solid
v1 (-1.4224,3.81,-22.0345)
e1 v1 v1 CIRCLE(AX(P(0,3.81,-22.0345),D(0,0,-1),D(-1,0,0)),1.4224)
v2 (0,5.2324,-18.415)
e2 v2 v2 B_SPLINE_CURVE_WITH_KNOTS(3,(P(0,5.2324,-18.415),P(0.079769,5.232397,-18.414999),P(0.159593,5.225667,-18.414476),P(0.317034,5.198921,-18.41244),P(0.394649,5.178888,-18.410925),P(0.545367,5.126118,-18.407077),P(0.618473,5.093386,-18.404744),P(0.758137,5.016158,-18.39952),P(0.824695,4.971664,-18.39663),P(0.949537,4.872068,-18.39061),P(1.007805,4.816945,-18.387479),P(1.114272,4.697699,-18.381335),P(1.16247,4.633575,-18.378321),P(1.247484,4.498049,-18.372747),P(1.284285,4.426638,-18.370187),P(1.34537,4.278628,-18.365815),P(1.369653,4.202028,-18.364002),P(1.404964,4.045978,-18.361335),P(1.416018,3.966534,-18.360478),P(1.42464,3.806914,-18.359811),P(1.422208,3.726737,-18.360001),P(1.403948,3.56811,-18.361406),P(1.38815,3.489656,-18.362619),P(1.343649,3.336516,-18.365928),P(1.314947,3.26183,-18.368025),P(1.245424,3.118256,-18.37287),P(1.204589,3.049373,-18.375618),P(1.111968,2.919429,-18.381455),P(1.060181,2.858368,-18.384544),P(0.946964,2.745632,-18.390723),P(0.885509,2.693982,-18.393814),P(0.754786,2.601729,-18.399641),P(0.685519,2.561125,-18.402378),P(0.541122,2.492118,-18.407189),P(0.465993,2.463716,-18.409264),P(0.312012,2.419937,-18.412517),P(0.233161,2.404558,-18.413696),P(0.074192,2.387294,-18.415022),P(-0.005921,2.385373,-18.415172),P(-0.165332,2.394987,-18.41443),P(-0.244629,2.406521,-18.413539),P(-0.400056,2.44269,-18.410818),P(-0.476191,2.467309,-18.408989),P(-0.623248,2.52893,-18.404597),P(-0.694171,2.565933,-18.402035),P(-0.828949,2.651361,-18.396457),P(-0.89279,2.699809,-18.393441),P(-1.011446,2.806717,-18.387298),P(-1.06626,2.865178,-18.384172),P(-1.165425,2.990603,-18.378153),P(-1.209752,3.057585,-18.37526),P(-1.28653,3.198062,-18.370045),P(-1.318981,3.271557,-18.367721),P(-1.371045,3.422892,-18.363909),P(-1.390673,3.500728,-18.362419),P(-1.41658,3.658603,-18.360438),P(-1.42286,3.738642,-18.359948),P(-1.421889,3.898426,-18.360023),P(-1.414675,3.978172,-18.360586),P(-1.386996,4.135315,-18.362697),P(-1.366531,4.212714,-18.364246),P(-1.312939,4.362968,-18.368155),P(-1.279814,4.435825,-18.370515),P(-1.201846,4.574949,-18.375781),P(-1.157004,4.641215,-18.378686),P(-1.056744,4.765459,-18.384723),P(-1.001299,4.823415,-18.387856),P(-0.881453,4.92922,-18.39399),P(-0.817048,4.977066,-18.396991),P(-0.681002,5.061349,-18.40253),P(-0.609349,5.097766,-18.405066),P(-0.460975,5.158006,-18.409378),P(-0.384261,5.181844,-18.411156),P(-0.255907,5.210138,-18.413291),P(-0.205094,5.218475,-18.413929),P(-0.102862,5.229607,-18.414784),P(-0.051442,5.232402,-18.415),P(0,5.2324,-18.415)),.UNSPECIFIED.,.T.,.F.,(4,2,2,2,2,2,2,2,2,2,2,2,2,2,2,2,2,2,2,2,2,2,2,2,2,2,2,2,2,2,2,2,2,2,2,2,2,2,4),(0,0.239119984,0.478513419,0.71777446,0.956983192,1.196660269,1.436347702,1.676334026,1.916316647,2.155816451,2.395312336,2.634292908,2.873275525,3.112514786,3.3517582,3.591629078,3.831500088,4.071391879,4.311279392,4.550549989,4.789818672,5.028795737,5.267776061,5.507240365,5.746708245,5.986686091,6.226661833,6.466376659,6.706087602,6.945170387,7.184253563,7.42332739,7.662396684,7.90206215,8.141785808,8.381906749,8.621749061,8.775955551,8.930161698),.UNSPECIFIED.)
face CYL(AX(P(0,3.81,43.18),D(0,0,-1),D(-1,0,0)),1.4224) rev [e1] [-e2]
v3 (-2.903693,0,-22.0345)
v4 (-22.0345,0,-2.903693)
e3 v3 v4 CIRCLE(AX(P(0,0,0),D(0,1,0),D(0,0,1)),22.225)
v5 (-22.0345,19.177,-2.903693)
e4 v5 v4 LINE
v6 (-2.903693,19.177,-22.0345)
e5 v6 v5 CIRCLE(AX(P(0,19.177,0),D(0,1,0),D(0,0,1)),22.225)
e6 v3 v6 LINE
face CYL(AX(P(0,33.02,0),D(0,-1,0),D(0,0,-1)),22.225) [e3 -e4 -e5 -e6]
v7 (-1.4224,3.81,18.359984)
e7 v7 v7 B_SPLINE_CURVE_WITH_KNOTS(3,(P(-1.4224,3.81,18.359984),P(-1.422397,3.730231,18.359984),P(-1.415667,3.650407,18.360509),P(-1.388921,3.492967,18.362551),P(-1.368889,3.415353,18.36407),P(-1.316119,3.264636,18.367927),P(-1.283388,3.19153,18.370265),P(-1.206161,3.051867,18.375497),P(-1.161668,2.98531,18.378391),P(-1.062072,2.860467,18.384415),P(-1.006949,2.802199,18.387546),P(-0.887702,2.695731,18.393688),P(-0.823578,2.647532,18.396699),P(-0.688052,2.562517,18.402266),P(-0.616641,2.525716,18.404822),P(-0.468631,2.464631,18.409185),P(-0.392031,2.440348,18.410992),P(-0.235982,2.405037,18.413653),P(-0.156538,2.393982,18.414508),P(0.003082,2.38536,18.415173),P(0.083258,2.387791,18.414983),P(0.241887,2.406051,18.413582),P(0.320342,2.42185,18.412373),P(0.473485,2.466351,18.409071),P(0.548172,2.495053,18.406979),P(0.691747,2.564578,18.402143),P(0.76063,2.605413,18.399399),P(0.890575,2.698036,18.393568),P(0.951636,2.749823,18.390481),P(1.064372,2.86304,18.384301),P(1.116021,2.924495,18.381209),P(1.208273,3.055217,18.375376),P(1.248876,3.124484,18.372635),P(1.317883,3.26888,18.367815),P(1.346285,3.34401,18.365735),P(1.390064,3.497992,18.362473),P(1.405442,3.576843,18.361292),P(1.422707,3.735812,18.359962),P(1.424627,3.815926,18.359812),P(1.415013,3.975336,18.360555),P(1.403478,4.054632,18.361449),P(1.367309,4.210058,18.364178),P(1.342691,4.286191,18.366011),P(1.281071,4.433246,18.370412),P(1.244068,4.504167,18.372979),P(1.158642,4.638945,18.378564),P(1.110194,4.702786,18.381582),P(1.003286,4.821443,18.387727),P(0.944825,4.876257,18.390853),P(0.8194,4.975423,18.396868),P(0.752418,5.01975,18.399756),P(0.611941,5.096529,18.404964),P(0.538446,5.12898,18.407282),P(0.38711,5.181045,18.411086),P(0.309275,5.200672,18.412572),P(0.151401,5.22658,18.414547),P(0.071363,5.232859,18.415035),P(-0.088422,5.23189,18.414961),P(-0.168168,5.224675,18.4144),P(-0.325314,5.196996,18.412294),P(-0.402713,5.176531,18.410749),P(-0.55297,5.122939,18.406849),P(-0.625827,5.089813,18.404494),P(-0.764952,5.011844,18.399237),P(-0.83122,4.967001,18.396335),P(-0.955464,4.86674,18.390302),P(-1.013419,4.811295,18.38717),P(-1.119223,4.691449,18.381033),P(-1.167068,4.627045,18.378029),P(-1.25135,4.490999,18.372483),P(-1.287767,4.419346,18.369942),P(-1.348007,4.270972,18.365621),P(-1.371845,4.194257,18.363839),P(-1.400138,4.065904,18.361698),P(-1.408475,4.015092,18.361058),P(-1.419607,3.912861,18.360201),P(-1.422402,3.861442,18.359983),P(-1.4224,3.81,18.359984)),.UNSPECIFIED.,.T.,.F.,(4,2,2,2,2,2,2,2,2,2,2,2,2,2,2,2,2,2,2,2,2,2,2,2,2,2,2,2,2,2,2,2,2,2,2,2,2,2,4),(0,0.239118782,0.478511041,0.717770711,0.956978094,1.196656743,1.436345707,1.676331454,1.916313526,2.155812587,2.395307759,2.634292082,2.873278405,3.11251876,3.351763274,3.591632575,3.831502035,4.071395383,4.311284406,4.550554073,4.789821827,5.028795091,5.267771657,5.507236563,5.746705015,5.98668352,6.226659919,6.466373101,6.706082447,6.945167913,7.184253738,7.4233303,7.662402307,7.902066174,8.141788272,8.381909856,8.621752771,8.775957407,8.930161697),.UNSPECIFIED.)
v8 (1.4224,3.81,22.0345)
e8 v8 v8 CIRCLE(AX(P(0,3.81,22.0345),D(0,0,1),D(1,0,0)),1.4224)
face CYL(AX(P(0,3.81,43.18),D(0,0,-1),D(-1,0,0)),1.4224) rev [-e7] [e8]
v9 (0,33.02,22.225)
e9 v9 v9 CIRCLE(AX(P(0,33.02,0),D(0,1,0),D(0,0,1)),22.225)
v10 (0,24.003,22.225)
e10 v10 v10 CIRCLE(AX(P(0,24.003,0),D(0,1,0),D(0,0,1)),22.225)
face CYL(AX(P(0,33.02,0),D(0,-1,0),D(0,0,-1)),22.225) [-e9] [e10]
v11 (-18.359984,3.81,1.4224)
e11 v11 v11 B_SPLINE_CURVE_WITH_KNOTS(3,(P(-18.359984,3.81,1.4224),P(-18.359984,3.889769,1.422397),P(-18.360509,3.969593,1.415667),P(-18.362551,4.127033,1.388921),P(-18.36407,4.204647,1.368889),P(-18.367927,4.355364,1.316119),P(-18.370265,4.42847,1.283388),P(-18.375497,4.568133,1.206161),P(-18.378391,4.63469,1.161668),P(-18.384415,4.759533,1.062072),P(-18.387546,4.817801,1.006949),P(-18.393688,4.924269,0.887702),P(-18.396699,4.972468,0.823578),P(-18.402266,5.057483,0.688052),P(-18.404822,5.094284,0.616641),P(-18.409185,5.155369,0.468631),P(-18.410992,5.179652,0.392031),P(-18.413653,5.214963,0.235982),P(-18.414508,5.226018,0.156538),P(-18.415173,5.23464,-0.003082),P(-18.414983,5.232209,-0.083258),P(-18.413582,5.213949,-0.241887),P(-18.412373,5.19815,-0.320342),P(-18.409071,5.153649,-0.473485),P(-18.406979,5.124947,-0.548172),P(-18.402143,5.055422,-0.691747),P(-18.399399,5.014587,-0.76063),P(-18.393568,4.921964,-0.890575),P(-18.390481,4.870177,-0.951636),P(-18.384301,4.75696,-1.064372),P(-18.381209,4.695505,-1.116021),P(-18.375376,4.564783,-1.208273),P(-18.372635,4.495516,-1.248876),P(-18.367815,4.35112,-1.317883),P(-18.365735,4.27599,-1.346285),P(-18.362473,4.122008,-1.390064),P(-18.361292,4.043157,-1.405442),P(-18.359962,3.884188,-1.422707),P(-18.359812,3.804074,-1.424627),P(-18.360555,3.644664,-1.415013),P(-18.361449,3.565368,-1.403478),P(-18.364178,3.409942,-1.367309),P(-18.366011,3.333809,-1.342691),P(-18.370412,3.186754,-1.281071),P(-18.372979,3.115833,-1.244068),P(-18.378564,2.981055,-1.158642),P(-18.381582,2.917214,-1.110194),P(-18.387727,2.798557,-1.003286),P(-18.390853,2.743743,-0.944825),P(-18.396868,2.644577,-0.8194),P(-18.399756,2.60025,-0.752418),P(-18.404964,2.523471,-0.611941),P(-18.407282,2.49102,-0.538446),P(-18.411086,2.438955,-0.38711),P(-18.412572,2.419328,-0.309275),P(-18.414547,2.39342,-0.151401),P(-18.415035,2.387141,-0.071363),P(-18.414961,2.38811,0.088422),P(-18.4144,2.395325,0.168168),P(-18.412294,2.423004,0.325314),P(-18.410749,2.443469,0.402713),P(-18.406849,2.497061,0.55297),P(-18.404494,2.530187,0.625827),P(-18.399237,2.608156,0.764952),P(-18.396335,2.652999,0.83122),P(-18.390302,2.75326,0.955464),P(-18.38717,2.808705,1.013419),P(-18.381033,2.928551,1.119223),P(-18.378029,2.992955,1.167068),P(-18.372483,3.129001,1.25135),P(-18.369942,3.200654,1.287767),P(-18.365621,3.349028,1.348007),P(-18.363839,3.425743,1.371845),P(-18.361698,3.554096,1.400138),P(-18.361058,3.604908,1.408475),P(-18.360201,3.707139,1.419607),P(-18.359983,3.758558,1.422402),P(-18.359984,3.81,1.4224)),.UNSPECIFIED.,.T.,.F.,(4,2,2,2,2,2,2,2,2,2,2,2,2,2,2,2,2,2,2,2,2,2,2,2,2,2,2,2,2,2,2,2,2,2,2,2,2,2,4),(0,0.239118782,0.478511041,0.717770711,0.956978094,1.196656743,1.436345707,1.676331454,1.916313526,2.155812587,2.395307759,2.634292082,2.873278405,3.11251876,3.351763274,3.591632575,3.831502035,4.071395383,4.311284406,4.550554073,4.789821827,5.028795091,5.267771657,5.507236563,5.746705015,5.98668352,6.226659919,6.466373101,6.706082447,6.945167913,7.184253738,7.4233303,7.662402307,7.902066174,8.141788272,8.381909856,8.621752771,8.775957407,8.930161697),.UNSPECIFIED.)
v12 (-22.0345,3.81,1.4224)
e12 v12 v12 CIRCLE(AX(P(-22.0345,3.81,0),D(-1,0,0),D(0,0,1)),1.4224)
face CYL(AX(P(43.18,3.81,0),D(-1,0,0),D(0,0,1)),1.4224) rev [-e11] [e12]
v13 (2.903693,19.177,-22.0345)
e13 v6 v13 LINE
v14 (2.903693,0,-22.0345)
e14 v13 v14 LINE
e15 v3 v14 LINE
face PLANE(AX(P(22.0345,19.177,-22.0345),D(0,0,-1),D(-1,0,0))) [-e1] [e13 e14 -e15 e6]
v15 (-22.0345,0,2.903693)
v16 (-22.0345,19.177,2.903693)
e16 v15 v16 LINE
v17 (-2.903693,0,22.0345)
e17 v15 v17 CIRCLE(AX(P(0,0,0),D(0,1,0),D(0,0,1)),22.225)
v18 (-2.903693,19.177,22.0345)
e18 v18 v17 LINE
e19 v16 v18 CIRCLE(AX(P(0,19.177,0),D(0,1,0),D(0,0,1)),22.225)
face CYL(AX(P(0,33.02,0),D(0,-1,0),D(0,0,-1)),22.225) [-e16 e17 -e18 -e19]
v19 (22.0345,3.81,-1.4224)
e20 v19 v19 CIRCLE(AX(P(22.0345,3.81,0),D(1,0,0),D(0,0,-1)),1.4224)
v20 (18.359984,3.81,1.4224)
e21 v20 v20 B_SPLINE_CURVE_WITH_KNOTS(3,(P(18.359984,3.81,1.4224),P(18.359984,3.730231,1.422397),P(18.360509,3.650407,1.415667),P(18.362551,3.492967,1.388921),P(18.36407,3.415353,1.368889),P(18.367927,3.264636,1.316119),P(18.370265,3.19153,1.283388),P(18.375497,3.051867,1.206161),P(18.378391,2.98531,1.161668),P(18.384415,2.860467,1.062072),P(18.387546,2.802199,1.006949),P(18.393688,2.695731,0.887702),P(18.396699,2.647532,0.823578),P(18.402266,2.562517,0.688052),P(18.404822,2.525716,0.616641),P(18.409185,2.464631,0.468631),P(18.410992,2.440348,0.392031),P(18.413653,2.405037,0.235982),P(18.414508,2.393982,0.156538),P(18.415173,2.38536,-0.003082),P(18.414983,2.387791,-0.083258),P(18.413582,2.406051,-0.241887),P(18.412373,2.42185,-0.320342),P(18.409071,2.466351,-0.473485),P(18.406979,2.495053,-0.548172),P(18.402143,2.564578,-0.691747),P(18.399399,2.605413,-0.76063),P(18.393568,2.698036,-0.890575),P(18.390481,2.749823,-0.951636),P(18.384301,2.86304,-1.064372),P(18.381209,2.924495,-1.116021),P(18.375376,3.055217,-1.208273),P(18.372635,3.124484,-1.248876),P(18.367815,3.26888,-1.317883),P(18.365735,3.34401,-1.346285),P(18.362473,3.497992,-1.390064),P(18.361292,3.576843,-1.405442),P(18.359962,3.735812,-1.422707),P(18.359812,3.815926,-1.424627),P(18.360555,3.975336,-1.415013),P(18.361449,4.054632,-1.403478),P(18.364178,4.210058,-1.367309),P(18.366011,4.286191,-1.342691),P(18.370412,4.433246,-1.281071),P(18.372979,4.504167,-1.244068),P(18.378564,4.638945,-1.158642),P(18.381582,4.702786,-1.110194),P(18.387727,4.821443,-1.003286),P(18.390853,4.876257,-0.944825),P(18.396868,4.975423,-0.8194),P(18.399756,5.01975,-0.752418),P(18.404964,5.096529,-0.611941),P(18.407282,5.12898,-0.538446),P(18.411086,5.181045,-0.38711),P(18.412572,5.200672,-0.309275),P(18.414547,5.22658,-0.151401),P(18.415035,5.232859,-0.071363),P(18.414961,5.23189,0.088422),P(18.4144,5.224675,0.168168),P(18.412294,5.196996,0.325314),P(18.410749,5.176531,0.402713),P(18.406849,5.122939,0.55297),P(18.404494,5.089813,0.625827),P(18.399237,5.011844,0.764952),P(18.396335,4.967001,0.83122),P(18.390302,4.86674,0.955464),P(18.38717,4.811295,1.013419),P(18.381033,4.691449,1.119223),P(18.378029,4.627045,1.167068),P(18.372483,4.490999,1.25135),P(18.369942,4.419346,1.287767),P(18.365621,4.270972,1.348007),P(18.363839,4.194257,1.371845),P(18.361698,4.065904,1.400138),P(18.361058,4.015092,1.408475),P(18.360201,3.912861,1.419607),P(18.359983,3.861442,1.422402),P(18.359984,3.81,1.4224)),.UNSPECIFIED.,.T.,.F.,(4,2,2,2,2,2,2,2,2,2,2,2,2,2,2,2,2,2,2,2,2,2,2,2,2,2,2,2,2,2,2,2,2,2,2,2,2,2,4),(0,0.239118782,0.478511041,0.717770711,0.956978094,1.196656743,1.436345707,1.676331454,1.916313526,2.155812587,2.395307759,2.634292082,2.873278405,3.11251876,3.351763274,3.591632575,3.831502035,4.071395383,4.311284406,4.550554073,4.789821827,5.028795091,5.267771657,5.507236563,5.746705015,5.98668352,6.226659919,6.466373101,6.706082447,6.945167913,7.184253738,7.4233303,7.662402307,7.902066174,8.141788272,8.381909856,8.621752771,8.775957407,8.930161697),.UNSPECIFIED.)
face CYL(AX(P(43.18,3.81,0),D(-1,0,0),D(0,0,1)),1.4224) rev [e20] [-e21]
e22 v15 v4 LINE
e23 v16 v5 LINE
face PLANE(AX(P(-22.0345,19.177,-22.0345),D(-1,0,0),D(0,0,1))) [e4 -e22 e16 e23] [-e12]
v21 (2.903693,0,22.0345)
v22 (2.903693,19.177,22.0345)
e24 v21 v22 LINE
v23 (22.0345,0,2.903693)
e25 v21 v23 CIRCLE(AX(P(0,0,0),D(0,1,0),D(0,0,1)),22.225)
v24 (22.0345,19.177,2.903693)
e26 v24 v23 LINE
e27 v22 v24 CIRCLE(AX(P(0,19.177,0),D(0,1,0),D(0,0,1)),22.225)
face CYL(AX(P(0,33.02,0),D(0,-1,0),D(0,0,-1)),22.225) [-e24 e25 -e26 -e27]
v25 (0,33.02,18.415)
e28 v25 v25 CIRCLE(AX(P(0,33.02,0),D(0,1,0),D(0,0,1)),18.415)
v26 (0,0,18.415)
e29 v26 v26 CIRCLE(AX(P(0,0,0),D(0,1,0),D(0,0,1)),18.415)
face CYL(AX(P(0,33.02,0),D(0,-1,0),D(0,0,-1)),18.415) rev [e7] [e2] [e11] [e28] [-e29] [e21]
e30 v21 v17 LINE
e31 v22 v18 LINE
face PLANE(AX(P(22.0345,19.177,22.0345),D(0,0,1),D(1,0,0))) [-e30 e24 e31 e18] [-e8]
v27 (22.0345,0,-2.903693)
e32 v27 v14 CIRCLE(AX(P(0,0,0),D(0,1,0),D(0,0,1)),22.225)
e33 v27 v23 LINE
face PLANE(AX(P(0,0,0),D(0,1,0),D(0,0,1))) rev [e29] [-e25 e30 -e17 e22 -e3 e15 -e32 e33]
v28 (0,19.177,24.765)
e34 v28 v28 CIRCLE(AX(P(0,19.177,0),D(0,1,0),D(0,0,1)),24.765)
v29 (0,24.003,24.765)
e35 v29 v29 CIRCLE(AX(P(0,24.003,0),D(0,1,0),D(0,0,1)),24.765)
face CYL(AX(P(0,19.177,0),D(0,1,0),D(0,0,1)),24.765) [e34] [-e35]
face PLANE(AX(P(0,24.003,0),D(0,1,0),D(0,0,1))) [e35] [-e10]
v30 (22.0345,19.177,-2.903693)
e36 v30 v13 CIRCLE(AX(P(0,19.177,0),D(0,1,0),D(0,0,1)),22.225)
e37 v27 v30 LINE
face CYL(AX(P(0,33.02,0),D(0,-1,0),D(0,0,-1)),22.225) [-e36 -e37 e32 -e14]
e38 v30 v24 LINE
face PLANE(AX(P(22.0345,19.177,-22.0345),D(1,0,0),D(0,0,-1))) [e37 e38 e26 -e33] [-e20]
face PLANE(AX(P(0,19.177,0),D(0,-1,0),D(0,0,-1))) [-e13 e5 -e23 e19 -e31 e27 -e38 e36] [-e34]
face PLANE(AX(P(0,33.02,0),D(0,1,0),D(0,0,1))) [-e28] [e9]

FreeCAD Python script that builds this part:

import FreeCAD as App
import Part
import Sketcher
Q = App.Units.Quantity

doc = App.newDocument("Part")
body = doc.addObject("PartDesign::Body", "Body")

sketch1 = body.newObject("Sketcher::SketchObject", "Sketch")
sketch1.AttachmentSupport = (doc.getObject("XZ_Plane"), [""])
sketch1.MapMode = "FlatFace"
sketch1.addGeometry([
    Part.Circle(App.Vector(0, 0, 0), App.Vector(0, 0, 1), 22.225),
    Part.Circle(App.Vector(0, 0, 0), App.Vector(0, 0, 1), 18.415),
], False)
sketch1.addConstraint([
    Sketcher.Constraint("Coincident", 0, 3, -1, 1),
    Sketcher.Constraint("Coincident", 1, 3, -1, 1),
    Sketcher.Constraint("Diameter", 0, Q("1.75 in")),
    Sketcher.Constraint("Diameter", 1, Q("1.45 in")),
])
pad1 = body.newObject("PartDesign::Pad", "Pad")
pad1.Profile = sketch1
pad1.Length = Q("1.3 in")
pad1.Reversed = True

sketch2 = body.newObject("Sketcher::SketchObject", "Sketch001")
sketch2.AttachmentSupport = (doc.getObject("XY_Plane"), [""])
sketch2.MapMode = "FlatFace"
sketch2.addGeometry(Part.Circle(App.Vector(0, 3.81, 0), App.Vector(0, 0, 1), 1.4224), False)
sketch2.addConstraint([
    Sketcher.Constraint("PointOnObject", 0, 3, -2),
    Sketcher.Constraint("Diameter", 0, Q("0.112 in")),
    Sketcher.Constraint("DistanceY", -1, 1, 0, 3, Q("0.15 in")),
])
pocket1 = body.newObject("PartDesign::Pocket", "Pocket")
pocket1.Profile = sketch2
pocket1.Type = "ThroughAll"
pocket1.Midplane = True

sketch3 = body.newObject("Sketcher::SketchObject", "Sketch002")
sketch3.AttachmentSupport = (doc.getObject("YZ_Plane"), [""])
sketch3.MapMode = "FlatFace"
sketch3.addGeometry(Part.Circle(App.Vector(3.81, 0, 0), App.Vector(0, 0, 1), 1.4224), False)
sketch3.addConstraint([
    Sketcher.Constraint("PointOnObject", 0, 3, -1),
    Sketcher.Constraint("Diameter", 0, Q("0.112 in")),
    Sketcher.Constraint("DistanceX", -1, 1, 0, 3, Q("0.15 in")),
])
pocket2 = body.newObject("PartDesign::Pocket", "Pocket001")
pocket2.Profile = sketch3
pocket2.Type = "ThroughAll"
pocket2.Midplane = True

sketch4 = body.newObject("Sketcher::SketchObject", "Sketch003")
sketch4.AttachmentSupport = (doc.getObject("XZ_Plane"), [""])
sketch4.MapMode = "FlatFace"
sketch4.addGeometry([
    Part.LineSegment(App.Vector(-24.512764, 24.00016, 0), App.Vector(-24.512764, -24.00016, 0)),
    Part.LineSegment(App.Vector(-24.512764, -24.00016, 0), App.Vector(24.512764, -24.00016, 0)),
    Part.LineSegment(App.Vector(24.512764, -24.00016, 0), App.Vector(24.512764, 24.00016, 0)),
    Part.LineSegment(App.Vector(24.512764, 24.00016, 0), App.Vector(-24.512764, 24.00016, 0)),
    Part.LineSegment(App.Vector(22.0345, -22.0345, 0), App.Vector(-22.0345, -22.0345, 0)),
    Part.LineSegment(App.Vector(-22.0345, -22.0345, 0), App.Vector(-22.0345, 22.0345, 0)),
    Part.LineSegment(App.Vector(-22.0345, 22.0345, 0), App.Vector(22.0345, 22.0345, 0)),
    Part.LineSegment(App.Vector(22.0345, 22.0345, 0), App.Vector(22.0345, -22.0345, 0)),
], False)
sketch4.addConstraint([
    Sketcher.Constraint("Coincident", 0, 2, 1, 1),
    Sketcher.Constraint("Coincident", 1, 2, 2, 1),
    Sketcher.Constraint("Coincident", 2, 2, 3, 1),
    Sketcher.Constraint("Coincident", 3, 2, 0, 1),
    Sketcher.Constraint("Coincident", 4, 2, 5, 1),
    Sketcher.Constraint("Coincident", 5, 2, 6, 1),
    Sketcher.Constraint("Coincident", 6, 2, 7, 1),
    Sketcher.Constraint("Coincident", 7, 2, 4, 1),
    Sketcher.Constraint("Vertical", 0),
    Sketcher.Constraint("Horizontal", 1),
    Sketcher.Constraint("Vertical", 2),
    Sketcher.Constraint("Horizontal", 3),
    Sketcher.Constraint("Horizontal", 4),
    Sketcher.Constraint("Vertical", 5),
    Sketcher.Constraint("Horizontal", 6),
    Sketcher.Constraint("Vertical", 7),
    Sketcher.Constraint("Symmetric", 0, 2, 2, 2, -1, 1),
    Sketcher.Constraint("Symmetric", 4, 2, 6, 2, -1, 1),
    Sketcher.Constraint("Equal", 6, 5),
    Sketcher.Constraint("DistanceX", 4, 2, 4, 1, Q("1.735 in")),
    Sketcher.Constraint("DistanceY", 0, 2, 0, 1, 48.00032),
    Sketcher.Constraint("DistanceX", 1, 1, 1, 2, 49.025528),
])
pocket3 = body.newObject("PartDesign::Pocket", "Pocket002")
pocket3.Profile = sketch4
pocket3.Length = Q("0.755 in")

sketch5 = body.newObject("Sketcher::SketchObject", "Sketch004")
sketch5.AttachmentSupport = (doc.getObject("XZ_Plane"), [""])
sketch5.MapMode = "FlatFace"
sketch5.AttachmentOffset = App.Placement(App.Vector(0, 0, -0.755 * 25.4), App.Rotation())
sketch5.addGeometry([
    Part.Circle(App.Vector(0, 0, 0), App.Vector(0, 0, 1), 24.765),
    Part.Circle(App.Vector(0, 0, 0), App.Vector(0, 0, 1), 18.415),
], False)
sketch5.addConstraint([
    Sketcher.Constraint("Coincident", 0, 3, -1, 1),
    Sketcher.Constraint("Coincident", 1, 3, -1, 1),
    Sketcher.Constraint("Diameter", 0, Q("1.95 in")),
    Sketcher.Constraint("Diameter", 1, Q("1.45 in")),
])
pad2 = body.newObject("PartDesign::Pad", "Pad001")
pad2.Profile = sketch5
pad2.Length = Q("0.19 in")
pad2.Reversed = True

doc.recompute()
